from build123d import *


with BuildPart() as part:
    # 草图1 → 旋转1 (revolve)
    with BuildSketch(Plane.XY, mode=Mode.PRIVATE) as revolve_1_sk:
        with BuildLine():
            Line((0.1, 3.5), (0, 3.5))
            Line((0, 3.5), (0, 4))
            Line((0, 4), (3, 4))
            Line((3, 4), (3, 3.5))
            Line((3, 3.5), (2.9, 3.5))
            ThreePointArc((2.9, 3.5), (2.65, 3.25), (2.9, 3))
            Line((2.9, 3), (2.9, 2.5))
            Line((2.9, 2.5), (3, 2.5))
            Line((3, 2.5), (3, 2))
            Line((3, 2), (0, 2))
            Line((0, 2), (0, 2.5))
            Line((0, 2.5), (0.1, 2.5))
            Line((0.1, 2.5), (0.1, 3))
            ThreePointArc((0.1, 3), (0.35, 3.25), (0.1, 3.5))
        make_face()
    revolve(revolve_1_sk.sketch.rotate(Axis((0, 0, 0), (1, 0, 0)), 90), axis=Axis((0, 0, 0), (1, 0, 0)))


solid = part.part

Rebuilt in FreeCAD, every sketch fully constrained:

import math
import FreeCAD as App
import Part
import Sketcher

V = App.Vector

doc = App.newDocument("Part")
body = doc.addObject("PartDesign::Body", "Body")

# Sketch on XY plane
sketch1 = body.newObject("Sketcher::SketchObject", "Sketch")
sketch1.AttachmentSupport = (doc.getObject("XY_Plane"), [""])
sketch1.MapMode = "FlatFace"
sketch1.addGeometry([
    Part.LineSegment(V(0, 3.5, 0), V(0.1, 3.5, 0)),  # 0
    Part.ArcOfCircle(Part.Circle(V(0.1, 3.25, 0), V(0, 0, 1), 0.25), math.radians(-90), math.radians(90)),  # 1
    Part.LineSegment(V(0.1, 3, 0), V(0.1, 2.5, 0)),  # 2
    Part.LineSegment(V(0.1, 2.5, 0), V(0, 2.5, 0)),  # 3
    Part.LineSegment(V(0, 2.5, 0), V(0, 2, 0)),  # 4
    Part.LineSegment(V(0, 2, 0), V(3, 2, 0)),  # 5
    Part.LineSegment(V(3, 2, 0), V(3, 2.5, 0)),  # 6
    Part.LineSegment(V(3, 2.5, 0), V(2.9, 2.5, 0)),  # 7
    Part.LineSegment(V(2.9, 2.5, 0), V(2.9, 3, 0)),  # 8
    Part.ArcOfCircle(Part.Circle(V(2.9, 3.25, 0), V(0, 0, 1), 0.25), math.radians(90), math.radians(270)),  # 9
    Part.LineSegment(V(2.9, 3.5, 0), V(3, 3.5, 0)),  # 10
    Part.LineSegment(V(3, 3.5, 0), V(3, 4, 0)),  # 11
    Part.LineSegment(V(3, 4, 0), V(0, 4, 0)),  # 12
    Part.LineSegment(V(0, 4, 0), V(0, 3.5, 0)),  # 13
], False)
sketch1.addConstraint([
    Sketcher.Constraint("Tangent", 0, 2, 1, 2),
    Sketcher.Constraint("Coincident", 1, 1, 2, 1),
    Sketcher.Constraint("Coincident", 2, 2, 3, 1),
    Sketcher.Constraint("Coincident", 3, 2, 4, 1),
    Sketcher.Constraint("Coincident", 4, 2, 5, 1),
    Sketcher.Constraint("Coincident", 5, 2, 6, 1),
    Sketcher.Constraint("Coincident", 6, 2, 7, 1),
    Sketcher.Constraint("Coincident", 7, 2, 8, 1),
    Sketcher.Constraint("Coincident", 8, 2, 9, 2),
    Sketcher.Constraint("Tangent", 9, 1, 10, 1),
    Sketcher.Constraint("Coincident", 10, 2, 11, 1),
    Sketcher.Constraint("Coincident", 11, 2, 12, 1),
    Sketcher.Constraint("Coincident", 12, 2, 13, 1),
    Sketcher.Constraint("Coincident", 13, 2, 0, 1),
    Sketcher.Constraint("Horizontal", 0),
    Sketcher.Constraint("Vertical", 2),
    Sketcher.Constraint("Horizontal", 3),
    Sketcher.Constraint("Vertical", 4),
    Sketcher.Constraint("Horizontal", 5),
    Sketcher.Constraint("Vertical", 6),
    Sketcher.Constraint("Horizontal", 7),
    Sketcher.Constraint("Vertical", 8),
    Sketcher.Constraint("Horizontal", 10),
    Sketcher.Constraint("Vertical", 11),
    Sketcher.Constraint("Horizontal", 12),
    Sketcher.Constraint("Vertical", 13),
    Sketcher.Constraint("Equal", 1, 9),
    Sketcher.Constraint("PointOnObject", 3, 2, -2),
    Sketcher.Constraint("PointOnObject", 12, 2, -2),
    Sketcher.Constraint("Horizontal", 1, 3, 9, 3),
    Sketcher.Constraint("Horizontal", 3, 2, 6, 2),
    Sketcher.Constraint("Vertical", 0, 2, 1, 1),
    Sketcher.Constraint("Vertical", 9, 3, 7, 2),
    Sketcher.Constraint("Vertical", 6, 2, 10, 2),
    Sketcher.Constraint("Equal", 3, 7),
    Sketcher.Constraint("Equal", 2, 4),
    Sketcher.Constraint("Equal", 8, 11),
    Sketcher.Constraint("DistanceX", 5, 1, 5, 2, 3.0),
    Sketcher.Constraint("Radius", 1, 0.25),
    Sketcher.Constraint("DistanceX", 0, 1, 0, 2, 0.1),
    Sketcher.Constraint("DistanceY", 2, 2, 2, 1, 0.5),
    Sketcher.Constraint("DistanceY", -1, 1, 1, 1, 3.0),
])
revolution = body.newObject("PartDesign::Revolution", "Revolution")
revolution.Profile = sketch1
revolution.ReferenceAxis = (sketch1, ["H_Axis"])
revolution.Angle = 360

doc.recompute()
